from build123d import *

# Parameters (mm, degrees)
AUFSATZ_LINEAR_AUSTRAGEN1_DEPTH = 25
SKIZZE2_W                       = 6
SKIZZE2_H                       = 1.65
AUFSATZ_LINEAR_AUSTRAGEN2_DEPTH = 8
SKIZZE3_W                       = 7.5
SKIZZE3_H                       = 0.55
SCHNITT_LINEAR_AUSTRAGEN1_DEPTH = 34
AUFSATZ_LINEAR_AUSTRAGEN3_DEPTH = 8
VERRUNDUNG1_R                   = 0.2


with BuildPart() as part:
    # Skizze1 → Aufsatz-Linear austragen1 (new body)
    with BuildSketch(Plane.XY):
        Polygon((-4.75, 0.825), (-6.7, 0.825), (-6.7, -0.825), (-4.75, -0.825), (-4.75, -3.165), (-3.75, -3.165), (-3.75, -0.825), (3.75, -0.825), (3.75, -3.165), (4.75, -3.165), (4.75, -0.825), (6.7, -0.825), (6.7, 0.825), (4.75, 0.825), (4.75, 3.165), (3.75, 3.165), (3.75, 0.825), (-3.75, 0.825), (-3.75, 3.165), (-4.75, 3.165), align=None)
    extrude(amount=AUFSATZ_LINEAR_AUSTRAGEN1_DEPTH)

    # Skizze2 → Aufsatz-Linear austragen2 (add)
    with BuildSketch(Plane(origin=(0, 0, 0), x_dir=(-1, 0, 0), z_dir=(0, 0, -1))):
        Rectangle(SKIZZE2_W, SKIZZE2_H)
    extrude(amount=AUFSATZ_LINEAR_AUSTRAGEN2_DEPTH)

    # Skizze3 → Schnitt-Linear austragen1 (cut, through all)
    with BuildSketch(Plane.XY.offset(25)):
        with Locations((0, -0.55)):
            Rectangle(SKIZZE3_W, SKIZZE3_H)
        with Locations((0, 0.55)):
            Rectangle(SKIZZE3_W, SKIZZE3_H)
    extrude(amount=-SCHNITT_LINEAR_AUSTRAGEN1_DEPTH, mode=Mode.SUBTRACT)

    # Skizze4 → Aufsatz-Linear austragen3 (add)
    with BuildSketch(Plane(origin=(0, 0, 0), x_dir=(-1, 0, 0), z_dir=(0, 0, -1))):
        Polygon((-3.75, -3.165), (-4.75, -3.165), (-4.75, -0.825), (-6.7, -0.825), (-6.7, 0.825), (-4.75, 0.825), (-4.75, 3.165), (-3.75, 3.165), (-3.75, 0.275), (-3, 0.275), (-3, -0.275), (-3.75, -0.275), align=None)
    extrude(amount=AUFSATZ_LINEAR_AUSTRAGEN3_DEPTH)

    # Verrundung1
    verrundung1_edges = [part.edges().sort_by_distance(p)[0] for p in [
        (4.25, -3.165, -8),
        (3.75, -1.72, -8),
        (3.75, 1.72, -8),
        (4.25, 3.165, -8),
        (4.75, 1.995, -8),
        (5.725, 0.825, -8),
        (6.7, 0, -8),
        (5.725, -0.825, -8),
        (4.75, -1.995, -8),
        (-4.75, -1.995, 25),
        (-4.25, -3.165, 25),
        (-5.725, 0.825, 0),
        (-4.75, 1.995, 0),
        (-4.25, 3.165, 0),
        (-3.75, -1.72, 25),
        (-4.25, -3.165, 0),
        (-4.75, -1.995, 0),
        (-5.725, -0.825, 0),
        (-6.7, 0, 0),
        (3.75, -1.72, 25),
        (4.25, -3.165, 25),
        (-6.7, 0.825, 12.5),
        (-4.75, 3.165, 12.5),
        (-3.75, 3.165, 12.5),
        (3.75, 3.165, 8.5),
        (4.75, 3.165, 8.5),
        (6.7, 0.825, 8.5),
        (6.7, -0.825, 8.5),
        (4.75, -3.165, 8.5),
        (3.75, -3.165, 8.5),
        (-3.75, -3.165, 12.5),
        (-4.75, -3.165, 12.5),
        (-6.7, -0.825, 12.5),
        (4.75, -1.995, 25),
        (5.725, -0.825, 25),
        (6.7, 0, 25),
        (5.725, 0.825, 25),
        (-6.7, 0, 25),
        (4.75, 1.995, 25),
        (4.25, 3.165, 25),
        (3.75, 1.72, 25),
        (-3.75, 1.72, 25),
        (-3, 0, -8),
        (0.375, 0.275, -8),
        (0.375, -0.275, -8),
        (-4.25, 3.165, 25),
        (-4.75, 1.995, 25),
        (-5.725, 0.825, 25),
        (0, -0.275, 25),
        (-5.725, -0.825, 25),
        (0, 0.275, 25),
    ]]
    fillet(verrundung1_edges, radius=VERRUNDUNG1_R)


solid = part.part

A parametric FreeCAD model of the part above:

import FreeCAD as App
import Part
import Sketcher
Q = App.Units.Quantity


def edges_at(feature, points):
    """Names of the edges that pass closest to the given points."""
    edges = feature.Shape.Edges
    near = lambda p: min(range(len(edges)), key=lambda i: edges[i].distToShape(Part.Vertex(*p))[0])
    return sorted({f"Edge{near(p) + 1}" for p in points})


def add_polygon(sketch, points):
    """Adds a closed chain of lines whose ends are joined by coincident constraints."""
    first, n = sketch.GeometryCount, len(points)
    for a, b in zip(points, points[1:] + points[:1]):
        sketch.addGeometry(Part.LineSegment(App.Vector(*a, 0), App.Vector(*b, 0)), False)
    for i in range(n):
        sketch.addConstraint(Sketcher.Constraint("Coincident", first + i, 2, first + (i + 1) % n, 1))

doc = App.newDocument("Part")
body = doc.addObject("PartDesign::Body", "Body")

sketch1 = doc.addObject("Sketcher::SketchObject", "Sketch")
body.addObject(sketch1)
sketch1.AttachmentSupport = (doc.XY_Plane, [""])
sketch1.MapMode = "FlatFace"
add_polygon(sketch1, [(-4.75, 0.825), (-6.7, 0.825), (-6.7, -0.825), (-4.75, -0.825), (-4.75, -3.165), (-3.75, -3.165), (-3.75, -0.825), (3.75, -0.825), (3.75, -3.165), (4.75, -3.165), (4.75, -0.825), (6.7, -0.825), (6.7, 0.825), (4.75, 0.825), (4.75, 3.165), (3.75, 3.165), (3.75, 0.825), (-3.75, 0.825), (-3.75, 3.165), (-4.75, 3.165)])
sketch1.addConstraint(Sketcher.Constraint("Horizontal", 0))
sketch1.addConstraint(Sketcher.Constraint("Vertical", 1))
sketch1.addConstraint(Sketcher.Constraint("Horizontal", 2))
sketch1.addConstraint(Sketcher.Constraint("Vertical", 3))
sketch1.addConstraint(Sketcher.Constraint("Horizontal", 4))
sketch1.addConstraint(Sketcher.Constraint("Vertical", 5))
sketch1.addConstraint(Sketcher.Constraint("Horizontal", 6))
sketch1.addConstraint(Sketcher.Constraint("Vertical", 7))
sketch1.addConstraint(Sketcher.Constraint("Horizontal", 8))
sketch1.addConstraint(Sketcher.Constraint("Vertical", 9))
sketch1.addConstraint(Sketcher.Constraint("Horizontal", 10))
sketch1.addConstraint(Sketcher.Constraint("Vertical", 11))
sketch1.addConstraint(Sketcher.Constraint("Horizontal", 12))
sketch1.addConstraint(Sketcher.Constraint("Vertical", 13))
sketch1.addConstraint(Sketcher.Constraint("Horizontal", 14))
sketch1.addConstraint(Sketcher.Constraint("Vertical", 15))
sketch1.addConstraint(Sketcher.Constraint("Horizontal", 16))
sketch1.addConstraint(Sketcher.Constraint("Vertical", 17))
sketch1.addConstraint(Sketcher.Constraint("Horizontal", 18))
sketch1.addConstraint(Sketcher.Constraint("Vertical", 19))
sketch1.addConstraint(Sketcher.Constraint("Symmetric", 0, 2, 10, 2, -1, 1))
sketch1.addConstraint(Sketcher.Constraint("Symmetric", 2, 2, 12, 2, -1, 1))
sketch1.addConstraint(Sketcher.Constraint("Symmetric", 4, 2, 14, 2, -1, 1))
sketch1.addConstraint(Sketcher.Constraint("Symmetric", 6, 2, 16, 2, -1, 1))
sketch1.addConstraint(Sketcher.Constraint("Symmetric", 8, 2, 18, 2, -1, 1))
sketch1.addConstraint(Sketcher.Constraint("Symmetric", 4, 2, 7, 2, -2))
sketch1.addConstraint(Sketcher.Constraint("Symmetric", 2, 2, 9, 2, -2))
sketch1.addConstraint(Sketcher.Constraint("Horizontal", 2, 2, 5, 2))
sketch1.addConstraint(Sketcher.Constraint("DistanceX", 4, 1, 4, 2, Q("1 mm")))
sketch1.addConstraint(Sketcher.Constraint("DistanceX", 6, 1, 6, 2, Q("7.5 mm")))
sketch1.addConstraint(Sketcher.Constraint("DistanceX", 0, 2, 0, 1, Q("1.95 mm")))
sketch1.addConstraint(Sketcher.Constraint("DistanceY", 1, 2, 1, 1, Q("1.65 mm")))
sketch1.addConstraint(Sketcher.Constraint("DistanceY", 3, 2, 3, 1, Q("2.34 mm")))
pad1 = doc.addObject("PartDesign::Pad", "Pad")
body.addObject(pad1)
pad1.Profile = sketch1
pad1.Length = 25

sketch2 = doc.addObject("Sketcher::SketchObject", "Sketch001")
body.addObject(sketch2)
sketch2.AttachmentSupport = (doc.XY_Plane, [""])
sketch2.MapMode = "FlatFace"
add_polygon(sketch2, [(3, 0.825), (3, -0.825), (-3, -0.825), (-3, 0.825)])
sketch2.addConstraint(Sketcher.Constraint("Vertical", 0))
sketch2.addConstraint(Sketcher.Constraint("Horizontal", 1))
sketch2.addConstraint(Sketcher.Constraint("Vertical", 2))
sketch2.addConstraint(Sketcher.Constraint("Horizontal", 3))
sketch2.addConstraint(Sketcher.Constraint("Symmetric", 0, 2, 2, 2, -1, 1))
sketch2.addConstraint(Sketcher.Constraint("DistanceX", 1, 2, 1, 1, Q("6 mm")))
sketch2.addConstraint(Sketcher.Constraint("DistanceY", 0, 2, 0, 1, Q("1.65 mm")))
pad2 = doc.addObject("PartDesign::Pad", "Pad001")
body.addObject(pad2)
pad2.Profile = sketch2
pad2.Length = 8
pad2.Reversed = True

sketch3 = doc.addObject("Sketcher::SketchObject", "Sketch002")
body.addObject(sketch3)
sketch3.AttachmentSupport = (doc.XY_Plane, [""])
sketch3.MapMode = "FlatFace"
sketch3.AttachmentOffset = App.Placement(App.Vector(0, 0, 25), App.Rotation())
add_polygon(sketch3, [(-3.75, -0.275), (-3.75, -0.825), (3.75, -0.825), (3.75, -0.275)])
add_polygon(sketch3, [(-3.75, 0.825), (-3.75, 0.275), (3.75, 0.275), (3.75, 0.825)])
sketch3.addConstraint(Sketcher.Constraint("Vertical", 0))
sketch3.addConstraint(Sketcher.Constraint("Horizontal", 1))
sketch3.addConstraint(Sketcher.Constraint("Vertical", 2))
sketch3.addConstraint(Sketcher.Constraint("Horizontal", 3))
sketch3.addConstraint(Sketcher.Constraint("Vertical", 4))
sketch3.addConstraint(Sketcher.Constraint("Horizontal", 5))
sketch3.addConstraint(Sketcher.Constraint("Vertical", 6))
sketch3.addConstraint(Sketcher.Constraint("Horizontal", 7))
sketch3.addConstraint(Sketcher.Constraint("Symmetric", 2, 2, 4, 2, -1, 1))
sketch3.addConstraint(Sketcher.Constraint("Symmetric", 0, 2, 6, 2, -1, 1))
sketch3.addConstraint(Sketcher.Constraint("Vertical", 3, 2, 4, 2))
sketch3.addConstraint(Sketcher.Constraint("DistanceX", 1, 1, 1, 2, Q("7.5 mm")))
sketch3.addConstraint(Sketcher.Constraint("DistanceY", 0, 2, 0, 1, Q("0.55 mm")))
sketch3.addConstraint(Sketcher.Constraint("DistanceY", 0, 2, 4, 2, Q("1.1 mm")))
pocket1 = doc.addObject("PartDesign::Pocket", "Pocket")
body.addObject(pocket1)
pocket1.Profile = sketch3
pocket1.Type = "ThroughAll"

sketch4 = doc.addObject("Sketcher::SketchObject", "Sketch003")
body.addObject(sketch4)
sketch4.AttachmentSupport = (doc.XY_Plane, [""])
sketch4.MapMode = "FlatFace"
add_polygon(sketch4, [(4.75, -3.165), (3.75, -3.165), (3.75, -0.275), (3, -0.275), (3, 0.275), (3.75, 0.275), (3.75, 3.165), (4.75, 3.165), (4.75, 0.825), (6.7, 0.825), (6.7, -0.825), (4.75, -0.825)])
sketch4.addConstraint(Sketcher.Constraint("Horizontal", 0))
sketch4.addConstraint(Sketcher.Constraint("Vertical", 1))
sketch4.addConstraint(Sketcher.Constraint("Horizontal", 2))
sketch4.addConstraint(Sketcher.Constraint("Vertical", 3))
sketch4.addConstraint(Sketcher.Constraint("Horizontal", 4))
sketch4.addConstraint(Sketcher.Constraint("Vertical", 5))
sketch4.addConstraint(Sketcher.Constraint("Horizontal", 6))
sketch4.addConstraint(Sketcher.Constraint("Vertical", 7))
sketch4.addConstraint(Sketcher.Constraint("Horizontal", 8))
sketch4.addConstraint(Sketcher.Constraint("Vertical", 9))
sketch4.addConstraint(Sketcher.Constraint("Horizontal", 10))
sketch4.addConstraint(Sketcher.Constraint("Vertical", 11))
sketch4.addConstraint(Sketcher.Constraint("Symmetric", 1, 2, 4, 2, -1))
sketch4.addConstraint(Sketcher.Constraint("Symmetric", 7, 2, 10, 2, -1))
sketch4.addConstraint(Sketcher.Constraint("Equal", 1, 5))
sketch4.addConstraint(Sketcher.Constraint("DistanceX", 0, 2, 0, 1, Q("1 mm")))
sketch4.addConstraint(Sketcher.Constraint("DistanceX", -1, 1, 2, 2, Q("3 mm")))
sketch4.addConstraint(Sketcher.Constraint("DistanceX", 2, 2, 2, 1, Q("0.75 mm")))
sketch4.addConstraint(Sketcher.Constraint("DistanceX", 8, 1, 8, 2, Q("1.95 mm")))
sketch4.addConstraint(Sketcher.Constraint("DistanceY", 1, 1, 1, 2, Q("2.89 mm")))
sketch4.addConstraint(Sketcher.Constraint("DistanceY", 3, 1, 3, 2, Q("0.55 mm")))
sketch4.addConstraint(Sketcher.Constraint("DistanceY", 7, 2, 7, 1, Q("2.34 mm")))
pad3 = doc.addObject("PartDesign::Pad", "Pad002")
body.addObject(pad3)
pad3.Profile = sketch4
pad3.Length = 8
pad3.Reversed = True
doc.recompute()

fillet = doc.addObject("PartDesign::Fillet", "Fillet")
body.addObject(fillet)
fillet.Base = (pad3, edges_at(pad3, [
    (4.25, -3.165, -8),
    (3.75, -1.72, -8),
    (3.75, 1.72, -8),
    (4.25, 3.165, -8),
    (4.75, 1.995, -8),
    (5.725, 0.825, -8),
    (6.7, 0, -8),
    (5.725, -0.825, -8),
    (4.75, -1.995, -8),
    (-4.75, -1.995, 25),
    (-4.25, -3.165, 25),
    (-5.725, 0.825, 0),
    (-4.75, 1.995, 0),
    (-4.25, 3.165, 0),
    (-3.75, -1.72, 25),
    (-4.25, -3.165, 0),
    (-4.75, -1.995, 0),
    (-5.725, -0.825, 0),
    (-6.7, 0, 0),
    (3.75, -1.72, 25),
    (4.25, -3.165, 25),
    (-6.7, 0.825, 12.5),
    (-4.75, 3.165, 12.5),
    (-3.75, 3.165, 12.5),
    (3.75, 3.165, 8.5),
    (4.75, 3.165, 8.5),
    (6.7, 0.825, 8.5),
    (6.7, -0.825, 8.5),
    (4.75, -3.165, 8.5),
    (3.75, -3.165, 8.5),
    (-3.75, -3.165, 12.5),
    (-4.75, -3.165, 12.5),
    (-6.7, -0.825, 12.5),
    (4.75, -1.995, 25),
    (5.725, -0.825, 25),
    (6.7, 0, 25),
    (5.725, 0.825, 25),
    (-6.7, 0, 25),
    (4.75, 1.995, 25),
    (4.25, 3.165, 25),
    (3.75, 1.72, 25),
    (-3.75, 1.72, 25),
    (-3, 0, -8),
    (0.375, 0.275, -8),
    (0.375, -0.275, -8),
    (-4.25, 3.165, 25),
    (-4.75, 1.995, 25),
    (-5.725, 0.825, 25),
    (0, -0.275, 25),
    (-5.725, -0.825, 25),
    (0, 0.275, 25),
]))
fillet.Radius = 0.2

doc.recompute()
